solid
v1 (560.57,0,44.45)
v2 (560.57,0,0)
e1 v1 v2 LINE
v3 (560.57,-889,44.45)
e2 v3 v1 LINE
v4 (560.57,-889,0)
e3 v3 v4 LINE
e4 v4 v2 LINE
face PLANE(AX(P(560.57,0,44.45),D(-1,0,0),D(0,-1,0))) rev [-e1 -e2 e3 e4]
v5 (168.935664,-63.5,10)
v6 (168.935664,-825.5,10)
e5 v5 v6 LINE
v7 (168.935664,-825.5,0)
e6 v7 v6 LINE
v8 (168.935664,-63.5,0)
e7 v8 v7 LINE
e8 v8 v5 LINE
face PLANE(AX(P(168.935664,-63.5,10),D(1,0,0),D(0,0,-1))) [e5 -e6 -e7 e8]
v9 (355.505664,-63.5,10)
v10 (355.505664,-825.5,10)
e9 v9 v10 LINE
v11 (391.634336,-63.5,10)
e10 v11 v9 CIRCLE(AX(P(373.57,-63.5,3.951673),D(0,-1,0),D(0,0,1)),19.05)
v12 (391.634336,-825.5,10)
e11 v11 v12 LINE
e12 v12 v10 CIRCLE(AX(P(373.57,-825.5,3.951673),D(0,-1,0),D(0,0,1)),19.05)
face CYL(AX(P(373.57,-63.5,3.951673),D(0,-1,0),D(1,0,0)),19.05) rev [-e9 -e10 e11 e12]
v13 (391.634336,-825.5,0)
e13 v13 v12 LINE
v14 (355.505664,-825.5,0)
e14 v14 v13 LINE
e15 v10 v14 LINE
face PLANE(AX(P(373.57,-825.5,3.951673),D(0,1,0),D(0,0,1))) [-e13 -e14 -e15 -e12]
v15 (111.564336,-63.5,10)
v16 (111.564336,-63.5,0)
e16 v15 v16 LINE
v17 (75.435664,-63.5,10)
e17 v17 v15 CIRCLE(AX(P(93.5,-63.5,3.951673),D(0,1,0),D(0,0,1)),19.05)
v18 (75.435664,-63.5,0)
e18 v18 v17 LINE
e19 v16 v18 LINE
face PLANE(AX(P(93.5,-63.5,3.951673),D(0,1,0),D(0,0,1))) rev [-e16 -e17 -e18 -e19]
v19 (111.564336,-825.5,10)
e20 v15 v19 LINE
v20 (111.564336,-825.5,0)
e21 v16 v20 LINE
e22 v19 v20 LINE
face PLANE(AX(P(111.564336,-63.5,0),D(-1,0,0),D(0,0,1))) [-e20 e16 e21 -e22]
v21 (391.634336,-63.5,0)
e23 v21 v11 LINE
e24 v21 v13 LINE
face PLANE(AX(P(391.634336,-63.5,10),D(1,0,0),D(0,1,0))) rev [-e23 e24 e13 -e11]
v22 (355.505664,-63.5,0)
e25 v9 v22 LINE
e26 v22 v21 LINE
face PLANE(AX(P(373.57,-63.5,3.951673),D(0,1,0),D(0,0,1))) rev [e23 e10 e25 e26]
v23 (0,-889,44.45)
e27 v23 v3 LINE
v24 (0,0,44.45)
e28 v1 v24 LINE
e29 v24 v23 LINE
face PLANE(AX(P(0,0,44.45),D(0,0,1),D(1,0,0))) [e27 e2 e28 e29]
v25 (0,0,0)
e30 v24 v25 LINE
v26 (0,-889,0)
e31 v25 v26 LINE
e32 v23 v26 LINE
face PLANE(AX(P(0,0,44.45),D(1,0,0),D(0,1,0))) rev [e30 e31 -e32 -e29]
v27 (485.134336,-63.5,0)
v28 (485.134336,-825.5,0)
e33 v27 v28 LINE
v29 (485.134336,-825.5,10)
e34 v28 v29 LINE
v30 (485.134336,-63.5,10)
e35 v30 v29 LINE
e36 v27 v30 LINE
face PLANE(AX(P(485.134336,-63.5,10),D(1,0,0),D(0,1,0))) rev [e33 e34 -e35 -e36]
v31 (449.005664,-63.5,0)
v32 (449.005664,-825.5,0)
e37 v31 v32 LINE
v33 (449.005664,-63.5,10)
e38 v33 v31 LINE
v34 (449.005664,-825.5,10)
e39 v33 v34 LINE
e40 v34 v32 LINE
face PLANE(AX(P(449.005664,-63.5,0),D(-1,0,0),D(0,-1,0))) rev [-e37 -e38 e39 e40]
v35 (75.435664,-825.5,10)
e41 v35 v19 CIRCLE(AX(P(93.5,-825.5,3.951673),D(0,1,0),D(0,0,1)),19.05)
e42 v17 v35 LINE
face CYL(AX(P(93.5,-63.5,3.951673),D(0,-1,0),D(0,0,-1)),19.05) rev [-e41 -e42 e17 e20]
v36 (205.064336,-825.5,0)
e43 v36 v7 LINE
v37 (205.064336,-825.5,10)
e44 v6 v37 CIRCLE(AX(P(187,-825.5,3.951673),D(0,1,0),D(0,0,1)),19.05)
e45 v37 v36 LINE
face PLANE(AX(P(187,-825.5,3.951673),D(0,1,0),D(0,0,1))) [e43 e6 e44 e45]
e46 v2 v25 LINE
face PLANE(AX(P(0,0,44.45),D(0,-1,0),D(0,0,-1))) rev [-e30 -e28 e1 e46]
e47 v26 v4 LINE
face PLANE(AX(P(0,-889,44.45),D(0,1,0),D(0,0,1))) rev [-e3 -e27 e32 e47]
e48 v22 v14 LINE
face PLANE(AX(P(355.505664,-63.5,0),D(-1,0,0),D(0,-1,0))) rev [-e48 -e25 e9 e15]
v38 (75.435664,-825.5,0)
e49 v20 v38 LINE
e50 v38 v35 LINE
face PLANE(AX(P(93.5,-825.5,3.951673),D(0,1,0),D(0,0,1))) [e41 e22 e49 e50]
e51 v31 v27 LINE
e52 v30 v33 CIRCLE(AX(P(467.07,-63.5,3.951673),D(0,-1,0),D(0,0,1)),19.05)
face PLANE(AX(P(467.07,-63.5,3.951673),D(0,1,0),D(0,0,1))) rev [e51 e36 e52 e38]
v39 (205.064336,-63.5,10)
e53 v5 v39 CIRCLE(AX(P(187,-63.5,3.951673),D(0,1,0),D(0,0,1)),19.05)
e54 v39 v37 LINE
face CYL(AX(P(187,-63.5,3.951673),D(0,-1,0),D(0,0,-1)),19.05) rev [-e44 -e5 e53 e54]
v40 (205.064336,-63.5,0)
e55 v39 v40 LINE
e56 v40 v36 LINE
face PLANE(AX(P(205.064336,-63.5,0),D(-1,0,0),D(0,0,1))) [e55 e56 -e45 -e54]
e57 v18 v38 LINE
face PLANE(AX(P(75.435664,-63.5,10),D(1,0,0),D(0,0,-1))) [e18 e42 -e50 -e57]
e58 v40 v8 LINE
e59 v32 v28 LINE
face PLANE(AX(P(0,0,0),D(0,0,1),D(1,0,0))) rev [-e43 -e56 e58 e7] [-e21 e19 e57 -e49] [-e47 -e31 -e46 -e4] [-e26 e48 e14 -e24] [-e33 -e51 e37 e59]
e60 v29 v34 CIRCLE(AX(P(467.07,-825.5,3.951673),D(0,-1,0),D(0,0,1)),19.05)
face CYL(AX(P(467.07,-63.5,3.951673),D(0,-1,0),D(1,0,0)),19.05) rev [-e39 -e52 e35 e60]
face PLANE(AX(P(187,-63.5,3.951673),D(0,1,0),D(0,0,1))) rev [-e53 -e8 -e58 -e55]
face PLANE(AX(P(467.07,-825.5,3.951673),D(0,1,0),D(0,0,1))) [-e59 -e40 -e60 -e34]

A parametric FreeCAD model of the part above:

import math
import FreeCAD as App
import Part
import Sketcher

V = App.Vector
Q = App.Units.Quantity


def add_polygon(sketch, points):
    """Adds a closed chain of lines whose ends are joined by coincident constraints."""
    first, n = sketch.GeometryCount, len(points)
    for a, b in zip(points, points[1:] + points[:1]):
        sketch.addGeometry(Part.LineSegment(App.Vector(*a, 0), App.Vector(*b, 0)), False)
    for i in range(n):
        sketch.addConstraint(Sketcher.Constraint("Coincident", first + i, 2, first + (i + 1) % n, 1))

doc = App.newDocument("Part")
body = doc.addObject("PartDesign::Body", "Body")

sketch1 = doc.addObject("Sketcher::SketchObject", "Sketch")
body.addObject(sketch1)
sketch1.AttachmentSupport = (doc.XY_Plane, [""])
sketch1.MapMode = "FlatFace"
add_polygon(sketch1, [(0, 0), (0, -889), (560.57, -889), (560.57, 0)])
sketch1.addConstraint(Sketcher.Constraint("Vertical", 0))
sketch1.addConstraint(Sketcher.Constraint("Horizontal", 1))
sketch1.addConstraint(Sketcher.Constraint("Vertical", 2))
sketch1.addConstraint(Sketcher.Constraint("Horizontal", 3))
sketch1.addConstraint(Sketcher.Constraint("Coincident", 3, 2, -1, 1))
sketch1.addConstraint(Sketcher.Constraint("DistanceY", 0, 2, 0, 1, Q("35 in")))
sketch1.addConstraint(Sketcher.Constraint("DistanceX", 1, 1, 1, 2, 560.57))
pad1 = doc.addObject("PartDesign::Pad", "Pad")
body.addObject(pad1)
pad1.Profile = sketch1
pad1.Length = Q("1.75 in")

sketch2 = doc.addObject("Sketcher::SketchObject", "Sketch001")
body.addObject(sketch2)
sketch2.AttachmentSupport = (doc.XZ_Plane, [""])
sketch2.MapMode = "FlatFace"
sketch2.AttachmentOffset = App.Placement(V(0, 0, 17.5 * 25.4), App.Rotation())
sketch2.addGeometry(Part.LineSegment(V(75.435664, 0, 0), V(75.435664, 10, 0)), False)
sketch2.addGeometry(Part.ArcOfCircle(Part.Circle(V(93.5, 3.951673, 0), V(0, 0, 1), 19.05), math.radians(18.51165), math.radians(161.48835)), False)
sketch2.addGeometry(Part.LineSegment(V(111.564336, 10, 0), V(111.564336, 0, 0)), False)
sketch2.addGeometry(Part.LineSegment(V(111.564336, 0, 0), V(75.435664, 0, 0)), False)
sketch2.addGeometry(Part.LineSegment(V(168.935664, 0, 0), V(168.935664, 10, 0)), False)
sketch2.addGeometry(Part.ArcOfCircle(Part.Circle(V(187, 3.951673, 0), V(0, 0, 1), 19.05), math.radians(18.51165), math.radians(161.48835)), False)
sketch2.addGeometry(Part.LineSegment(V(205.064336, 10, 0), V(205.064336, 0, 0)), False)
sketch2.addGeometry(Part.LineSegment(V(205.064336, 0, 0), V(168.935664, 0, 0)), False)
sketch2.addConstraint(Sketcher.Constraint("Coincident", 0, 2, 1, 2))
sketch2.addConstraint(Sketcher.Constraint("Coincident", 1, 1, 2, 1))
sketch2.addConstraint(Sketcher.Constraint("Coincident", 2, 2, 3, 1))
sketch2.addConstraint(Sketcher.Constraint("Coincident", 3, 2, 0, 1))
sketch2.addConstraint(Sketcher.Constraint("Coincident", 4, 2, 5, 2))
sketch2.addConstraint(Sketcher.Constraint("Coincident", 5, 1, 6, 1))
sketch2.addConstraint(Sketcher.Constraint("Coincident", 6, 2, 7, 1))
sketch2.addConstraint(Sketcher.Constraint("Coincident", 7, 2, 4, 1))
sketch2.addConstraint(Sketcher.Constraint("Vertical", 0))
sketch2.addConstraint(Sketcher.Constraint("Vertical", 2))
sketch2.addConstraint(Sketcher.Constraint("Horizontal", 3))
sketch2.addConstraint(Sketcher.Constraint("Vertical", 4))
sketch2.addConstraint(Sketcher.Constraint("Vertical", 6))
sketch2.addConstraint(Sketcher.Constraint("Horizontal", 7))
sketch2.addConstraint(Sketcher.Constraint("Equal", 1, 5))
sketch2.addConstraint(Sketcher.Constraint("PointOnObject", 2, 2, -1))
sketch2.addConstraint(Sketcher.Constraint("PointOnObject", 6, 2, -1))
sketch2.addConstraint(Sketcher.Constraint("Horizontal", 1, 3, 5, 3))
sketch2.addConstraint(Sketcher.Constraint("Horizontal", 0, 2, 1, 1))
sketch2.addConstraint(Sketcher.Constraint("Horizontal", 1, 1, 4, 2))
sketch2.addConstraint(Sketcher.Constraint("Horizontal", 4, 2, 5, 1))
sketch2.addConstraint(Sketcher.Constraint("Radius", 1, Q("0.75 in")))
sketch2.addConstraint(Sketcher.Constraint("DistanceY", 0, 1, 0, 2, 10.0))
sketch2.addConstraint(Sketcher.Constraint("DistanceX", -1, 1, 1, 3, 93.5))
sketch2.addConstraint(Sketcher.Constraint("DistanceX", -1, 1, 5, 3, 187.0))
sketch2.addConstraint(Sketcher.Constraint("DistanceX", 3, 2, 3, 1, 36.128672))
pocket1 = doc.addObject("PartDesign::Pocket", "Pocket")
body.addObject(pocket1)
pocket1.Profile = sketch2
pocket1.Length = Q("30 in")
pocket1.Midplane = True
doc.recompute()

datumplane = doc.addObject("PartDesign::Plane", "DatumPlane")
body.addObject(datumplane)
datumplane.AttachmentSupport = (doc.YZ_Plane, [""])
datumplane.MapMode = "FlatFace"
datumplane.AttachmentOffset = App.Placement(V(0, 0, 280.285), App.Rotation())
mirrored = doc.addObject("PartDesign::Mirrored", "Mirrored")
body.addObject(mirrored)
mirrored.Originals = [pocket1]
mirrored.MirrorPlane = (datumplane, [""])
body.Tip = mirrored

doc.recompute()
